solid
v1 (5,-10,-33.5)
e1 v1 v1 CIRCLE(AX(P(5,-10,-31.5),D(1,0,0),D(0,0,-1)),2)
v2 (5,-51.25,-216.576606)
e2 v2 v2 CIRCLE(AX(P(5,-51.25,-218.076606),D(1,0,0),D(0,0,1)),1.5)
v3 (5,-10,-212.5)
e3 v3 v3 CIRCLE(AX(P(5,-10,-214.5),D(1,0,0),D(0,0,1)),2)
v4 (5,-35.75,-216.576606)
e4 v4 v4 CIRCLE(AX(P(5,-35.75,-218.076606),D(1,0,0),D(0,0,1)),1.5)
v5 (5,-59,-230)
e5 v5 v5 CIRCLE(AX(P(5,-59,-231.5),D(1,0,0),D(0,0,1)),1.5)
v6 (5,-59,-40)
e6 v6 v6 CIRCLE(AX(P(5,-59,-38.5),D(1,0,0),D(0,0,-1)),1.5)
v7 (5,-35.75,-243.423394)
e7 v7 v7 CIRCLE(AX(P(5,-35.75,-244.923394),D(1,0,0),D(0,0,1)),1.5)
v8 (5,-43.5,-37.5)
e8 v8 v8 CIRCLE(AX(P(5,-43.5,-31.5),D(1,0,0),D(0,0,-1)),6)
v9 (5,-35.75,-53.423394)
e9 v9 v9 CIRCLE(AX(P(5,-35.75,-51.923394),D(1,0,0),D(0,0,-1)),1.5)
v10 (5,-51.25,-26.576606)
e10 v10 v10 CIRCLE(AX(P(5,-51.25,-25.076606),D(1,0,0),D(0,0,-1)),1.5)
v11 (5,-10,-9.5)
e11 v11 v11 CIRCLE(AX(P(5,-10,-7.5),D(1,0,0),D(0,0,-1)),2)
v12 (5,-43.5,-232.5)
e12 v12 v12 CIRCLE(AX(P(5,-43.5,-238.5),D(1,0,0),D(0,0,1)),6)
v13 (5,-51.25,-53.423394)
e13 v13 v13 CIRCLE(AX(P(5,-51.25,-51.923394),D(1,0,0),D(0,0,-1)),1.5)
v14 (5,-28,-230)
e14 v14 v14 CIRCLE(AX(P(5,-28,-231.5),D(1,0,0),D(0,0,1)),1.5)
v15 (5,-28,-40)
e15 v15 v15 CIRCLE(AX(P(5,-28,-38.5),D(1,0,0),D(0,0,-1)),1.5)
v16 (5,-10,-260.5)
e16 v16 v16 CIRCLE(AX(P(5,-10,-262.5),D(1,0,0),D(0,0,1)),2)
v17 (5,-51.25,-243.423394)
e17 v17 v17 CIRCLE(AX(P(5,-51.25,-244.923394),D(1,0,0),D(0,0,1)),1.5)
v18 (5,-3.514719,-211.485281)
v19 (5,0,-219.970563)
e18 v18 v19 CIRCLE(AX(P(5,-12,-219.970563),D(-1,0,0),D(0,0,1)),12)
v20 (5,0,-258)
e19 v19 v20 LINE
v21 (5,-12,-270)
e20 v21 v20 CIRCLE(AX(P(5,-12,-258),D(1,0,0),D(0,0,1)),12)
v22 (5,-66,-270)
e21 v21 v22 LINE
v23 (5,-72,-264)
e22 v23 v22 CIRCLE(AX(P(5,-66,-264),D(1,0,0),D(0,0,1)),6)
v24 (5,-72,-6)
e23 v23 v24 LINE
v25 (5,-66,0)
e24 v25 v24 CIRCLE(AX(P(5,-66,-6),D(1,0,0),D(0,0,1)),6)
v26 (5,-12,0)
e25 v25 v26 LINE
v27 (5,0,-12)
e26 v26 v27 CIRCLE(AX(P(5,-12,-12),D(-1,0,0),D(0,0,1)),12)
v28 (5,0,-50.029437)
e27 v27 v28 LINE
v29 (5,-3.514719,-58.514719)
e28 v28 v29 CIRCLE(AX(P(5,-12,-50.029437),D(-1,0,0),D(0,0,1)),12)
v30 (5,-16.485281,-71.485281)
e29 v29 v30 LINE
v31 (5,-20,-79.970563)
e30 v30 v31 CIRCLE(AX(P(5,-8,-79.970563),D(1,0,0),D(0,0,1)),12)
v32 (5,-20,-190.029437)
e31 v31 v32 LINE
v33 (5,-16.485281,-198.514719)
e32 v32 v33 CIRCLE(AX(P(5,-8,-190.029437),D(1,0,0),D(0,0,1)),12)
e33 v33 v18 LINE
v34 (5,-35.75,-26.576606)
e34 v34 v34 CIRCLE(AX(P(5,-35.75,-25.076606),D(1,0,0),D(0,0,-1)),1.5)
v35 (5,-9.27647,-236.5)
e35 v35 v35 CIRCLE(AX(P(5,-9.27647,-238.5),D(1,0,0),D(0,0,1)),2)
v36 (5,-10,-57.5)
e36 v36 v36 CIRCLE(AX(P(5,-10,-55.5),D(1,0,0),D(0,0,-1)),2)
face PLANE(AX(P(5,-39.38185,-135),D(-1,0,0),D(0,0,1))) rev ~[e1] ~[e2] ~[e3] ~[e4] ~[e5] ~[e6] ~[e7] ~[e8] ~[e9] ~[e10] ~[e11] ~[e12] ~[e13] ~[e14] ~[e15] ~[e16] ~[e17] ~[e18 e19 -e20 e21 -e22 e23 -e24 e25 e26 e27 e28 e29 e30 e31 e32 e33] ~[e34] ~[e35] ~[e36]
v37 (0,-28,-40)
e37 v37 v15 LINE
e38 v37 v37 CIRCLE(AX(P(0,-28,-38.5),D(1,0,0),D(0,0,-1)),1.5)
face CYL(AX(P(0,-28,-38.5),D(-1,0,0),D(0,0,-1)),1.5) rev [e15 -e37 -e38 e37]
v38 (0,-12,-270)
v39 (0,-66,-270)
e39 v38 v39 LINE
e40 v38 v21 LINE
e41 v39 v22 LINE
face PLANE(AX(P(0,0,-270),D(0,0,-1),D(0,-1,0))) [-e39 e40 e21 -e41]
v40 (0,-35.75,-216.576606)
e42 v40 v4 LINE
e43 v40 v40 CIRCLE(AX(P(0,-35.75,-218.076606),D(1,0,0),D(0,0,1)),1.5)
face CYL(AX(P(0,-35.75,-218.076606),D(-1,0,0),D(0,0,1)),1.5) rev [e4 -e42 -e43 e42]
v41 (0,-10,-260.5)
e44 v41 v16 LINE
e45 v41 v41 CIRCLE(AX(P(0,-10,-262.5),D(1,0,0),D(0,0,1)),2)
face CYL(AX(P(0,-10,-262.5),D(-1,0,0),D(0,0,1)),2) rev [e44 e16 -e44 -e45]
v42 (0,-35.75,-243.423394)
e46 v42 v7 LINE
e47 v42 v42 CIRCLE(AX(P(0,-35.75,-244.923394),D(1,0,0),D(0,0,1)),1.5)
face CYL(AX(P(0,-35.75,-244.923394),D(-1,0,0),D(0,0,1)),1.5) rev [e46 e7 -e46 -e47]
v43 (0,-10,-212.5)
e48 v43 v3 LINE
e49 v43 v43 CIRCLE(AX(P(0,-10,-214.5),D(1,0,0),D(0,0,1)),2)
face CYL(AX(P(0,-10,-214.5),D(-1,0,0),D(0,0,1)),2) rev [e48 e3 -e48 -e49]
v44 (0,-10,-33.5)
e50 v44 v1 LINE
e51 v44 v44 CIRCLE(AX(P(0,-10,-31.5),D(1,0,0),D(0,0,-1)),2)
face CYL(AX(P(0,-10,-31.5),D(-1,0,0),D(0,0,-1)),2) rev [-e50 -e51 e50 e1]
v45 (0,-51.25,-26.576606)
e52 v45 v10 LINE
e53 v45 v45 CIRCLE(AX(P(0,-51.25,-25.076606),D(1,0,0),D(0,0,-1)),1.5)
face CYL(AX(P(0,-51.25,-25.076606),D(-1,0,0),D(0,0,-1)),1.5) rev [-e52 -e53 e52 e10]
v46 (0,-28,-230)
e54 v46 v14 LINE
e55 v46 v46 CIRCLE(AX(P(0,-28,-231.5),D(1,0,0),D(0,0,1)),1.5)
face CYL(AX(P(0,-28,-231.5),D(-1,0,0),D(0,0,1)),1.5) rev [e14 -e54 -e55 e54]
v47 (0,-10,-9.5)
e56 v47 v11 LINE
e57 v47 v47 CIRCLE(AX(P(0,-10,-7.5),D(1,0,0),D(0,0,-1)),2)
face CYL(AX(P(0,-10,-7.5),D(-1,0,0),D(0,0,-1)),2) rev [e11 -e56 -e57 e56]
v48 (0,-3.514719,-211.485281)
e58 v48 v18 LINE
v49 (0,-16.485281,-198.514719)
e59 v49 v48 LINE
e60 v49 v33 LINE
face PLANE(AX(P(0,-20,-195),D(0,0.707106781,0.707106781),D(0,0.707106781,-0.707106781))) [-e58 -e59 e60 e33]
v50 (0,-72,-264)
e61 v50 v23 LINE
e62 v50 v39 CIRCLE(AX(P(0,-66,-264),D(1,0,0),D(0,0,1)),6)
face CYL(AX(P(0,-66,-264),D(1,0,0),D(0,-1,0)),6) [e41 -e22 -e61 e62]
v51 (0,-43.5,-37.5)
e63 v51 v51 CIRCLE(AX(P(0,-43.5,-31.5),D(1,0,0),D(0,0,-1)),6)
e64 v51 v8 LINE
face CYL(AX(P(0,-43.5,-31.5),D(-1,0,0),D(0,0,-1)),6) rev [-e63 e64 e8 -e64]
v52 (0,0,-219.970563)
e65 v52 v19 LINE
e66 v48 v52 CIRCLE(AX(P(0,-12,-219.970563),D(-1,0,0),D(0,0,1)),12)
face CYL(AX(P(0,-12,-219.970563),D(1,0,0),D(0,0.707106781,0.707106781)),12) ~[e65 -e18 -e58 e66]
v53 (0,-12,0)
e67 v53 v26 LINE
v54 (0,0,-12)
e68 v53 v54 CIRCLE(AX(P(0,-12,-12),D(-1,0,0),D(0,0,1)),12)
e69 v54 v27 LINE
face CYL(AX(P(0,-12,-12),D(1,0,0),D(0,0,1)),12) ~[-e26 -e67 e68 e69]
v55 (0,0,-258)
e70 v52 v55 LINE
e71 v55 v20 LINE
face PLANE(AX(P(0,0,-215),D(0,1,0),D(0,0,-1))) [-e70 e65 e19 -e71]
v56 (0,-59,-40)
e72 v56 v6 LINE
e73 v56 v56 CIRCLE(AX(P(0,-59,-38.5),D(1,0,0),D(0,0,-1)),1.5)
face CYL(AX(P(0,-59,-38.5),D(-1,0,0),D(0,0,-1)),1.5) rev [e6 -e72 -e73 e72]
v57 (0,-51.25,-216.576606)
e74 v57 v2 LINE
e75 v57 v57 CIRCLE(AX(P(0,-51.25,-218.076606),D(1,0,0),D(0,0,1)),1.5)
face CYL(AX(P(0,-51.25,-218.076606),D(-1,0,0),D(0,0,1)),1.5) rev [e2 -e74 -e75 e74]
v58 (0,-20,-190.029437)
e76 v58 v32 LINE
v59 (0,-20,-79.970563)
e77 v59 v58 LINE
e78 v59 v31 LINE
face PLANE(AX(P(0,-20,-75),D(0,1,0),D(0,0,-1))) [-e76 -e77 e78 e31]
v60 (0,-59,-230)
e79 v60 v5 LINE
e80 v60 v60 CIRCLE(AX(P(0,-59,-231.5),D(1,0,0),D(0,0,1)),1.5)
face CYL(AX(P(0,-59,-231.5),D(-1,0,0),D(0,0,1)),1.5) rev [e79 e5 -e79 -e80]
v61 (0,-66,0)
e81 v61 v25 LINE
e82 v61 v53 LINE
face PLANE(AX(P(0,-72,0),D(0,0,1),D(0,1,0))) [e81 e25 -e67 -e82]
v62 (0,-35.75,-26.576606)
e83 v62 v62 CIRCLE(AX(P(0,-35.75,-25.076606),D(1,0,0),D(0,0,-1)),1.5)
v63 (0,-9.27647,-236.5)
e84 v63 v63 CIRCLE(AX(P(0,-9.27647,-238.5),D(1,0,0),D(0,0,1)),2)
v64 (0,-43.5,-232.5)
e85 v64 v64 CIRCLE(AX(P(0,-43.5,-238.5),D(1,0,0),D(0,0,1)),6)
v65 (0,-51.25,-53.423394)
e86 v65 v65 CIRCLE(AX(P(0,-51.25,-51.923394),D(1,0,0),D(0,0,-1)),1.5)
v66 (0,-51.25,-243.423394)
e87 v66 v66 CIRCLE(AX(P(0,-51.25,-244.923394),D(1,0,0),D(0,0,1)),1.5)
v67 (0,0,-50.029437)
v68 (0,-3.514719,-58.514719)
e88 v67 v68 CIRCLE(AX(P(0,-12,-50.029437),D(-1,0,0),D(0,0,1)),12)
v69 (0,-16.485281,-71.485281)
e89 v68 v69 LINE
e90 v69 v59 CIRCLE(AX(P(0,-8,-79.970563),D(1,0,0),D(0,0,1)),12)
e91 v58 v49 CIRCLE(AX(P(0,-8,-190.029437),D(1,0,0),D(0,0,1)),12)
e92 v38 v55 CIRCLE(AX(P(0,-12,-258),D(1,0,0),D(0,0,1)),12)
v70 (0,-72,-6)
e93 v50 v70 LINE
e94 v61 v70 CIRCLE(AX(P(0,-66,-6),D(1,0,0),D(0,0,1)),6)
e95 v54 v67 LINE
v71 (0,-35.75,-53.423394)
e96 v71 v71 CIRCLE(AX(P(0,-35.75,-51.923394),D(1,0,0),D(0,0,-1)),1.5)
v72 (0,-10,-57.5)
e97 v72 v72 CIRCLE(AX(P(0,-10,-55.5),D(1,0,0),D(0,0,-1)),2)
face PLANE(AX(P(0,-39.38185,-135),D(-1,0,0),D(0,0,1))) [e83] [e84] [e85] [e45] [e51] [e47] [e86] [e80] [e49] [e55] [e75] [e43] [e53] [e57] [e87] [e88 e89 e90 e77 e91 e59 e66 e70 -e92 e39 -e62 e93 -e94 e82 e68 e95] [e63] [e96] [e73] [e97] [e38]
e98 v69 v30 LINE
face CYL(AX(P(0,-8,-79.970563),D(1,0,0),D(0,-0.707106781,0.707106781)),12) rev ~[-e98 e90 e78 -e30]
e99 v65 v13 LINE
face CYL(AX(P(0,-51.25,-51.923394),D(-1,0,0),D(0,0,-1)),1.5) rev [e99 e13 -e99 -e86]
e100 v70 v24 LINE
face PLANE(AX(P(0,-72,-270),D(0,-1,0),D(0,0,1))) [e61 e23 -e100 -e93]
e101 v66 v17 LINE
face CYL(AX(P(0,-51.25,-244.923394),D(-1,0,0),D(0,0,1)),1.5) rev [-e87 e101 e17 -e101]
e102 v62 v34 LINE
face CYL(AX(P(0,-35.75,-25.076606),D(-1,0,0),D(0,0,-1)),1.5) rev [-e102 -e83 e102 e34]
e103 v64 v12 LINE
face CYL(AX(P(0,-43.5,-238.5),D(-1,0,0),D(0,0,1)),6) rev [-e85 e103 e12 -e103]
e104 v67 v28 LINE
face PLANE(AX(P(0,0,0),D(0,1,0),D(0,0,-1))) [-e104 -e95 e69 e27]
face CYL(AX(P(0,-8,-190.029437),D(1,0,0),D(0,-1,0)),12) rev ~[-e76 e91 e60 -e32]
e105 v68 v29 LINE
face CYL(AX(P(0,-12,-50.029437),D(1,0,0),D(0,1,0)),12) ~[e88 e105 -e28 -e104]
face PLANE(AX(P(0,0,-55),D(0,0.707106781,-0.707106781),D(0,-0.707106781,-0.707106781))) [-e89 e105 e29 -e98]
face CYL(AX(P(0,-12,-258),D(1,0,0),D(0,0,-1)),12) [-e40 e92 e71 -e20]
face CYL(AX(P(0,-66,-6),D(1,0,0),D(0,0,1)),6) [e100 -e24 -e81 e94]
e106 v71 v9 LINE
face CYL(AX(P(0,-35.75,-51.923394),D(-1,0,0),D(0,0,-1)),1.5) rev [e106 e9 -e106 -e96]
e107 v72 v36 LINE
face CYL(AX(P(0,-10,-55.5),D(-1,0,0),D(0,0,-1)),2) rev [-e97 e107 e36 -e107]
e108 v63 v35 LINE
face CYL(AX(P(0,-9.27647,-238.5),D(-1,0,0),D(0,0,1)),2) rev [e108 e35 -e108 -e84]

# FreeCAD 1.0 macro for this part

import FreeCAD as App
import Part
import Sketcher
Q = App.Units.Quantity


def edges_at(feature, points):
    """Names of the edges that pass closest to the given points."""
    edges = feature.Shape.Edges
    near = lambda p: min(range(len(edges)), key=lambda i: edges[i].distToShape(Part.Vertex(*p))[0])
    return sorted({f"Edge{near(p) + 1}" for p in points})

doc = App.newDocument("Part")
body = doc.addObject("PartDesign::Body", "Body")

# Sketch on YZ plane
sketch1 = body.newObject("Sketcher::SketchObject", "Sketch")
sketch1.AttachmentSupport = (doc.getObject("YZ_Plane"), [""])
sketch1.MapMode = "FlatFace"
sketch1.addGeometry([
    Part.LineSegment(App.Vector(0, -55, 0), App.Vector(0, 0, 0)),  # 0
    Part.LineSegment(App.Vector(0, 0, 0), App.Vector(-72, 0, 0)),  # 1
    Part.LineSegment(App.Vector(-72, 0, 0), App.Vector(-72, -270, 0)),  # 2
    Part.LineSegment(App.Vector(-72, -270, 0), App.Vector(0, -270, 0)),  # 3
    Part.LineSegment(App.Vector(0, -270, 0), App.Vector(0, -215, 0)),  # 4
    Part.LineSegment(App.Vector(0, -215, 0), App.Vector(-20, -195, 0)),  # 5
    Part.LineSegment(App.Vector(-20, -195, 0), App.Vector(-20, -75, 0)),  # 6
    Part.LineSegment(App.Vector(-20, -75, 0), App.Vector(0, -55, 0)),  # 7
    Part.Circle(App.Vector(-59, -231.5, 0), App.Vector(0, 0, 1), 1.5),  # 8
    Part.Circle(App.Vector(-51.25, -244.923394, 0), App.Vector(0, 0, 1), 1.5),  # 9
    Part.Circle(App.Vector(-51.25, -218.076606, 0), App.Vector(0, 0, 1), 1.5),  # 10
    Part.Circle(App.Vector(-43.5, -238.5, 0), App.Vector(0, 0, 1), 6),  # 11
    Part.Circle(App.Vector(-35.75, -244.923394, 0), App.Vector(0, 0, 1), 1.5),  # 12
    Part.Circle(App.Vector(-35.75, -218.076606, 0), App.Vector(0, 0, 1), 1.5),  # 13
    Part.Circle(App.Vector(-59, -38.5, 0), App.Vector(0, 0, 1), 1.5),  # 14
    Part.Circle(App.Vector(-51.25, -51.923394, 0), App.Vector(0, 0, 1), 1.5),  # 15
    Part.Circle(App.Vector(-51.25, -25.076606, 0), App.Vector(0, 0, 1), 1.5),  # 16
    Part.Circle(App.Vector(-43.5, -31.5, 0), App.Vector(0, 0, 1), 6),  # 17
    Part.Circle(App.Vector(-35.75, -51.923394, 0), App.Vector(0, 0, 1), 1.5),  # 18
    Part.Circle(App.Vector(-35.75, -25.076606, 0), App.Vector(0, 0, 1), 1.5),  # 19
    Part.Circle(App.Vector(-28, -231.5, 0), App.Vector(0, 0, 1), 1.5),  # 20
    Part.Circle(App.Vector(-10, -262.5, 0), App.Vector(0, 0, 1), 2),  # 21
    Part.Circle(App.Vector(-9.27647, -238.5, 0), App.Vector(0, 0, 1), 2),  # 22
    Part.Circle(App.Vector(-10, -214.5, 0), App.Vector(0, 0, 1), 2),  # 23
    Part.Circle(App.Vector(-28, -38.5, 0), App.Vector(0, 0, 1), 1.5),  # 24
    Part.Circle(App.Vector(-10, -55.5, 0), App.Vector(0, 0, 1), 2),  # 25
    Part.Circle(App.Vector(-10, -31.5, 0), App.Vector(0, 0, 1), 2),  # 26
    Part.Circle(App.Vector(-10, -7.5, 0), App.Vector(0, 0, 1), 2),  # 27
], False)
sketch1.addConstraint([
    Sketcher.Constraint("Coincident", 0, 2, 1, 1),
    Sketcher.Constraint("Coincident", 1, 2, 2, 1),
    Sketcher.Constraint("Coincident", 2, 2, 3, 1),
    Sketcher.Constraint("Coincident", 3, 2, 4, 1),
    Sketcher.Constraint("Coincident", 4, 2, 5, 1),
    Sketcher.Constraint("Coincident", 5, 2, 6, 1),
    Sketcher.Constraint("Coincident", 6, 2, 7, 1),
    Sketcher.Constraint("Coincident", 7, 2, 0, 1),
    Sketcher.Constraint("Vertical", 0),
    Sketcher.Constraint("Horizontal", 1),
    Sketcher.Constraint("Vertical", 2),
    Sketcher.Constraint("Horizontal", 3),
    Sketcher.Constraint("Vertical", 4),
    Sketcher.Constraint("Vertical", 6),
    Sketcher.Constraint("Coincident", 0, 2, -1, 1),
    Sketcher.Constraint("Equal", 8, 9),
    Sketcher.Constraint("Equal", 9, 10),
    Sketcher.Constraint("Equal", 10, 12),
    Sketcher.Constraint("Equal", 12, 13),
    Sketcher.Constraint("Equal", 13, 14),
    Sketcher.Constraint("Equal", 14, 15),
    Sketcher.Constraint("Equal", 15, 16),
    Sketcher.Constraint("Equal", 11, 17),
    Sketcher.Constraint("Equal", 16, 18),
    Sketcher.Constraint("Equal", 18, 19),
    Sketcher.Constraint("Equal", 19, 20),
    Sketcher.Constraint("Equal", 21, 22),
    Sketcher.Constraint("Equal", 22, 23),
    Sketcher.Constraint("Equal", 20, 24),
    Sketcher.Constraint("Equal", 23, 25),
    Sketcher.Constraint("Equal", 25, 26),
    Sketcher.Constraint("Equal", 26, 27),
    Sketcher.Constraint("PointOnObject", 3, 2, -2),
    Sketcher.Constraint("Perpendicular", 5, 7),
    Sketcher.Constraint("Horizontal", 9, 3, 12, 3),
    Sketcher.Constraint("Horizontal", 10, 3, 13, 3),
    Sketcher.Constraint("Horizontal", 15, 3, 18, 3),
    Sketcher.Constraint("Horizontal", 16, 3, 19, 3),
    Sketcher.Constraint("Horizontal", 8, 3, 20, 3),
    Sketcher.Constraint("Horizontal", 11, 3, 22, 3),
    Sketcher.Constraint("Horizontal", 14, 3, 24, 3),
    Sketcher.Constraint("Horizontal", 17, 3, 26, 3),
    Sketcher.Constraint("Vertical", 9, 3, 10, 3),
    Sketcher.Constraint("Vertical", 12, 3, 13, 3),
    Sketcher.Constraint("Vertical", 8, 3, 14, 3),
    Sketcher.Constraint("Vertical", 10, 3, 15, 3),
    Sketcher.Constraint("Vertical", 15, 3, 16, 3),
    Sketcher.Constraint("Vertical", 11, 3, 17, 3),
    Sketcher.Constraint("Vertical", 13, 3, 18, 3),
    Sketcher.Constraint("Vertical", 18, 3, 19, 3),
    Sketcher.Constraint("Vertical", 21, 3, 23, 3),
    Sketcher.Constraint("Vertical", 20, 3, 24, 3),
    Sketcher.Constraint("Vertical", 23, 3, 25, 3),
    Sketcher.Constraint("Vertical", 25, 3, 26, 3),
    Sketcher.Constraint("Vertical", 26, 3, 27, 3),
    Sketcher.Constraint("Equal", 0, 4),
    Sketcher.Constraint("Equal", 5, 7),
    Sketcher.Constraint("Diameter", 8, Q("3 mm")),
    Sketcher.Constraint("Diameter", 11, Q("12 mm")),
    Sketcher.Constraint("Diameter", 21, Q("4 mm")),
    Sketcher.Constraint("DistanceX", 1, 2, 1, 1, Q("72 mm")),
    Sketcher.Constraint("DistanceY", 0, 1, 0, 2, Q("55 mm")),
    Sketcher.Constraint("DistanceY", 2, 2, 2, 1, Q("270 mm")),
    Sketcher.Constraint("DistanceY", 6, 1, 6, 2, Q("120 mm")),
    Sketcher.Constraint("DistanceX", 8, 3, -1, 1, Q("59 mm")),
    Sketcher.Constraint("DistanceX", 20, 3, -1, 1, Q("28 mm")),
    Sketcher.Constraint("DistanceX", 21, 3, -1, 1, Q("10 mm")),
    Sketcher.Constraint("DistanceY", 11, 3, 8, 3, Q("7 mm")),
    Sketcher.Constraint("DistanceY", 8, 3, 14, 3, Q("193 mm")),
    Sketcher.Constraint("DistanceY", 10, 3, 16, 3, Q("193 mm")),
    Sketcher.Constraint("DistanceY", 14, 3, 17, 3, Q("7 mm")),
    Sketcher.Constraint("DistanceY", 21, 3, 20, 3, Q("31 mm")),
    Sketcher.Constraint("DistanceY", 22, 3, 23, 3, Q("24 mm")),
    Sketcher.Constraint("DistanceY", 25, 3, 24, 3, Q("17 mm")),
    Sketcher.Constraint("DistanceY", 26, 3, 27, 3, Q("24 mm")),
    Sketcher.Constraint("DistanceY", 8, 3, -1, 1, Q("231.5 mm")),
    Sketcher.Constraint("DistanceX", 11, 3, -1, 1, Q("43.5 mm")),
    Sketcher.Constraint("DistanceX", 9, 3, 12, 3, Q("15.5 mm")),
    Sketcher.Constraint("DistanceX", 9, 3, -1, 1, Q("51.25 mm")),
    Sketcher.Constraint("DistanceX", 22, 3, -1, 1, Q("9.27647 mm")),
    Sketcher.Constraint("DistanceY", 9, 3, -1, 1, Q("244.923394 mm")),
    Sketcher.Constraint("DistanceY", 10, 3, -1, 1, Q("218.076606 mm")),
    Sketcher.Constraint("DistanceY", 15, 3, -1, 1, Q("51.923394 mm")),
])
pad1 = body.newObject("PartDesign::Pad", "Pad")
pad1.Profile = sketch1
pad1.Length = 5
doc.recompute()

fillet = body.newObject("PartDesign::Fillet", "Fillet")
fillet.Base = (pad1, edges_at(pad1, [(2.5, -72, -270), (2.5, -72, 0)]))
fillet.Radius = 6
doc.recompute()

fillet2 = body.newObject("PartDesign::Fillet", "Fillet001")
fillet2.Base = (fillet, edges_at(fillet, [
    (2.5, 0, 0),
    (2.5, 0, -55),
    (2.5, -20, -75),
    (2.5, -20, -195),
    (2.5, 0, -215),
    (2.5, 0, -270),
]))
fillet2.Radius = 12

doc.recompute()
